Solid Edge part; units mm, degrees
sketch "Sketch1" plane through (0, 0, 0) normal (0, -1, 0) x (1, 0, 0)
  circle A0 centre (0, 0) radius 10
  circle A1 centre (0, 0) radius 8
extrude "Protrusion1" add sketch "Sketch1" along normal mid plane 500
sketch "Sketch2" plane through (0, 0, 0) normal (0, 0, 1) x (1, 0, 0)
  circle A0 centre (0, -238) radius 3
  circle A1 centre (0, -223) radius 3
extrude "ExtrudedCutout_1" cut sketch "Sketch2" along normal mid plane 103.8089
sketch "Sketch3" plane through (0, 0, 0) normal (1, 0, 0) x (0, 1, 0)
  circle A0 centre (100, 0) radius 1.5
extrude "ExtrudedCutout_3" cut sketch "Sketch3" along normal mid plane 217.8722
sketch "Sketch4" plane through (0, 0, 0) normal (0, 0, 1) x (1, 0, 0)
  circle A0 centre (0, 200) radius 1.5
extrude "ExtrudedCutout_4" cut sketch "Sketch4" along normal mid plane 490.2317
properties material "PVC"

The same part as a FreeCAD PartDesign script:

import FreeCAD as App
import Part
import Sketcher

V = App.Vector
Q = App.Units.Quantity

doc = App.newDocument("Part")
body = doc.addObject("PartDesign::Body", "Body")

sketch1 = body.newObject("Sketcher::SketchObject", "Sketch")
sketch1.AttachmentSupport = (doc.getObject("XZ_Plane"), [""])
sketch1.MapMode = "FlatFace"
sketch1.addGeometry(Part.Circle(V(0, 0, 0), V(0, 0, 1), 10), False)
sketch1.addGeometry(Part.Circle(V(0, 0, 0), V(0, 0, 1), 8), False)
sketch1.addConstraint(Sketcher.Constraint("Coincident", 0, 3, -1, 1))
sketch1.addConstraint(Sketcher.Constraint("Coincident", 1, 3, -1, 1))
sketch1.addConstraint(Sketcher.Constraint("Diameter", 0, Q("20 mm")))
sketch1.addConstraint(Sketcher.Constraint("Diameter", 1, Q("16 mm")))
pad1 = body.newObject("PartDesign::Pad", "Pad")
pad1.Profile = sketch1
pad1.Length = 500
pad1.Midplane = True

sketch2 = body.newObject("Sketcher::SketchObject", "Sketch001")
sketch2.AttachmentSupport = (doc.getObject("XY_Plane"), [""])
sketch2.MapMode = "FlatFace"
sketch2.addGeometry(Part.Circle(V(0, -238, 0), V(0, 0, 1), 3), False)
sketch2.addGeometry(Part.Circle(V(0, -223, 0), V(0, 0, 1), 3), False)
sketch2.addConstraint(Sketcher.Constraint("Equal", 0, 1))
sketch2.addConstraint(Sketcher.Constraint("PointOnObject", 0, 3, -2))
sketch2.addConstraint(Sketcher.Constraint("PointOnObject", 1, 3, -2))
sketch2.addConstraint(Sketcher.Constraint("Diameter", 0, Q("6 mm")))
sketch2.addConstraint(Sketcher.Constraint("DistanceY", 0, 3, -1, 1, Q("238 mm")))
sketch2.addConstraint(Sketcher.Constraint("DistanceY", 1, 3, -1, 1, Q("223 mm")))
pocket1 = body.newObject("PartDesign::Pocket", "Pocket")
pocket1.Profile = sketch2
pocket1.Length = 103.8089
pocket1.Midplane = True

sketch3 = body.newObject("Sketcher::SketchObject", "Sketch002")
sketch3.AttachmentSupport = (doc.getObject("YZ_Plane"), [""])
sketch3.MapMode = "FlatFace"
sketch3.addGeometry(Part.Circle(V(100, 0, 0), V(0, 0, 1), 1.5), False)
sketch3.addConstraint(Sketcher.Constraint("PointOnObject", 0, 3, -1))
sketch3.addConstraint(Sketcher.Constraint("Diameter", 0, Q("3 mm")))
sketch3.addConstraint(Sketcher.Constraint("DistanceX", -1, 1, 0, 3, Q("100 mm")))
pocket2 = body.newObject("PartDesign::Pocket", "Pocket001")
pocket2.Profile = sketch3
pocket2.Length = 217.8722
pocket2.Midplane = True

sketch4 = body.newObject("Sketcher::SketchObject", "Sketch003")
sketch4.AttachmentSupport = (doc.getObject("XY_Plane"), [""])
sketch4.MapMode = "FlatFace"
sketch4.addGeometry(Part.Circle(V(0, 200, 0), V(0, 0, 1), 1.5), False)
sketch4.addConstraint(Sketcher.Constraint("PointOnObject", 0, 3, -2))
sketch4.addConstraint(Sketcher.Constraint("Diameter", 0, Q("3 mm")))
sketch4.addConstraint(Sketcher.Constraint("DistanceY", -1, 1, 0, 3, Q("200 mm")))
pocket3 = body.newObject("PartDesign::Pocket", "Pocket002")
pocket3.Profile = sketch4
pocket3.Length = 490.2317
pocket3.Midplane = True

doc.recompute()
